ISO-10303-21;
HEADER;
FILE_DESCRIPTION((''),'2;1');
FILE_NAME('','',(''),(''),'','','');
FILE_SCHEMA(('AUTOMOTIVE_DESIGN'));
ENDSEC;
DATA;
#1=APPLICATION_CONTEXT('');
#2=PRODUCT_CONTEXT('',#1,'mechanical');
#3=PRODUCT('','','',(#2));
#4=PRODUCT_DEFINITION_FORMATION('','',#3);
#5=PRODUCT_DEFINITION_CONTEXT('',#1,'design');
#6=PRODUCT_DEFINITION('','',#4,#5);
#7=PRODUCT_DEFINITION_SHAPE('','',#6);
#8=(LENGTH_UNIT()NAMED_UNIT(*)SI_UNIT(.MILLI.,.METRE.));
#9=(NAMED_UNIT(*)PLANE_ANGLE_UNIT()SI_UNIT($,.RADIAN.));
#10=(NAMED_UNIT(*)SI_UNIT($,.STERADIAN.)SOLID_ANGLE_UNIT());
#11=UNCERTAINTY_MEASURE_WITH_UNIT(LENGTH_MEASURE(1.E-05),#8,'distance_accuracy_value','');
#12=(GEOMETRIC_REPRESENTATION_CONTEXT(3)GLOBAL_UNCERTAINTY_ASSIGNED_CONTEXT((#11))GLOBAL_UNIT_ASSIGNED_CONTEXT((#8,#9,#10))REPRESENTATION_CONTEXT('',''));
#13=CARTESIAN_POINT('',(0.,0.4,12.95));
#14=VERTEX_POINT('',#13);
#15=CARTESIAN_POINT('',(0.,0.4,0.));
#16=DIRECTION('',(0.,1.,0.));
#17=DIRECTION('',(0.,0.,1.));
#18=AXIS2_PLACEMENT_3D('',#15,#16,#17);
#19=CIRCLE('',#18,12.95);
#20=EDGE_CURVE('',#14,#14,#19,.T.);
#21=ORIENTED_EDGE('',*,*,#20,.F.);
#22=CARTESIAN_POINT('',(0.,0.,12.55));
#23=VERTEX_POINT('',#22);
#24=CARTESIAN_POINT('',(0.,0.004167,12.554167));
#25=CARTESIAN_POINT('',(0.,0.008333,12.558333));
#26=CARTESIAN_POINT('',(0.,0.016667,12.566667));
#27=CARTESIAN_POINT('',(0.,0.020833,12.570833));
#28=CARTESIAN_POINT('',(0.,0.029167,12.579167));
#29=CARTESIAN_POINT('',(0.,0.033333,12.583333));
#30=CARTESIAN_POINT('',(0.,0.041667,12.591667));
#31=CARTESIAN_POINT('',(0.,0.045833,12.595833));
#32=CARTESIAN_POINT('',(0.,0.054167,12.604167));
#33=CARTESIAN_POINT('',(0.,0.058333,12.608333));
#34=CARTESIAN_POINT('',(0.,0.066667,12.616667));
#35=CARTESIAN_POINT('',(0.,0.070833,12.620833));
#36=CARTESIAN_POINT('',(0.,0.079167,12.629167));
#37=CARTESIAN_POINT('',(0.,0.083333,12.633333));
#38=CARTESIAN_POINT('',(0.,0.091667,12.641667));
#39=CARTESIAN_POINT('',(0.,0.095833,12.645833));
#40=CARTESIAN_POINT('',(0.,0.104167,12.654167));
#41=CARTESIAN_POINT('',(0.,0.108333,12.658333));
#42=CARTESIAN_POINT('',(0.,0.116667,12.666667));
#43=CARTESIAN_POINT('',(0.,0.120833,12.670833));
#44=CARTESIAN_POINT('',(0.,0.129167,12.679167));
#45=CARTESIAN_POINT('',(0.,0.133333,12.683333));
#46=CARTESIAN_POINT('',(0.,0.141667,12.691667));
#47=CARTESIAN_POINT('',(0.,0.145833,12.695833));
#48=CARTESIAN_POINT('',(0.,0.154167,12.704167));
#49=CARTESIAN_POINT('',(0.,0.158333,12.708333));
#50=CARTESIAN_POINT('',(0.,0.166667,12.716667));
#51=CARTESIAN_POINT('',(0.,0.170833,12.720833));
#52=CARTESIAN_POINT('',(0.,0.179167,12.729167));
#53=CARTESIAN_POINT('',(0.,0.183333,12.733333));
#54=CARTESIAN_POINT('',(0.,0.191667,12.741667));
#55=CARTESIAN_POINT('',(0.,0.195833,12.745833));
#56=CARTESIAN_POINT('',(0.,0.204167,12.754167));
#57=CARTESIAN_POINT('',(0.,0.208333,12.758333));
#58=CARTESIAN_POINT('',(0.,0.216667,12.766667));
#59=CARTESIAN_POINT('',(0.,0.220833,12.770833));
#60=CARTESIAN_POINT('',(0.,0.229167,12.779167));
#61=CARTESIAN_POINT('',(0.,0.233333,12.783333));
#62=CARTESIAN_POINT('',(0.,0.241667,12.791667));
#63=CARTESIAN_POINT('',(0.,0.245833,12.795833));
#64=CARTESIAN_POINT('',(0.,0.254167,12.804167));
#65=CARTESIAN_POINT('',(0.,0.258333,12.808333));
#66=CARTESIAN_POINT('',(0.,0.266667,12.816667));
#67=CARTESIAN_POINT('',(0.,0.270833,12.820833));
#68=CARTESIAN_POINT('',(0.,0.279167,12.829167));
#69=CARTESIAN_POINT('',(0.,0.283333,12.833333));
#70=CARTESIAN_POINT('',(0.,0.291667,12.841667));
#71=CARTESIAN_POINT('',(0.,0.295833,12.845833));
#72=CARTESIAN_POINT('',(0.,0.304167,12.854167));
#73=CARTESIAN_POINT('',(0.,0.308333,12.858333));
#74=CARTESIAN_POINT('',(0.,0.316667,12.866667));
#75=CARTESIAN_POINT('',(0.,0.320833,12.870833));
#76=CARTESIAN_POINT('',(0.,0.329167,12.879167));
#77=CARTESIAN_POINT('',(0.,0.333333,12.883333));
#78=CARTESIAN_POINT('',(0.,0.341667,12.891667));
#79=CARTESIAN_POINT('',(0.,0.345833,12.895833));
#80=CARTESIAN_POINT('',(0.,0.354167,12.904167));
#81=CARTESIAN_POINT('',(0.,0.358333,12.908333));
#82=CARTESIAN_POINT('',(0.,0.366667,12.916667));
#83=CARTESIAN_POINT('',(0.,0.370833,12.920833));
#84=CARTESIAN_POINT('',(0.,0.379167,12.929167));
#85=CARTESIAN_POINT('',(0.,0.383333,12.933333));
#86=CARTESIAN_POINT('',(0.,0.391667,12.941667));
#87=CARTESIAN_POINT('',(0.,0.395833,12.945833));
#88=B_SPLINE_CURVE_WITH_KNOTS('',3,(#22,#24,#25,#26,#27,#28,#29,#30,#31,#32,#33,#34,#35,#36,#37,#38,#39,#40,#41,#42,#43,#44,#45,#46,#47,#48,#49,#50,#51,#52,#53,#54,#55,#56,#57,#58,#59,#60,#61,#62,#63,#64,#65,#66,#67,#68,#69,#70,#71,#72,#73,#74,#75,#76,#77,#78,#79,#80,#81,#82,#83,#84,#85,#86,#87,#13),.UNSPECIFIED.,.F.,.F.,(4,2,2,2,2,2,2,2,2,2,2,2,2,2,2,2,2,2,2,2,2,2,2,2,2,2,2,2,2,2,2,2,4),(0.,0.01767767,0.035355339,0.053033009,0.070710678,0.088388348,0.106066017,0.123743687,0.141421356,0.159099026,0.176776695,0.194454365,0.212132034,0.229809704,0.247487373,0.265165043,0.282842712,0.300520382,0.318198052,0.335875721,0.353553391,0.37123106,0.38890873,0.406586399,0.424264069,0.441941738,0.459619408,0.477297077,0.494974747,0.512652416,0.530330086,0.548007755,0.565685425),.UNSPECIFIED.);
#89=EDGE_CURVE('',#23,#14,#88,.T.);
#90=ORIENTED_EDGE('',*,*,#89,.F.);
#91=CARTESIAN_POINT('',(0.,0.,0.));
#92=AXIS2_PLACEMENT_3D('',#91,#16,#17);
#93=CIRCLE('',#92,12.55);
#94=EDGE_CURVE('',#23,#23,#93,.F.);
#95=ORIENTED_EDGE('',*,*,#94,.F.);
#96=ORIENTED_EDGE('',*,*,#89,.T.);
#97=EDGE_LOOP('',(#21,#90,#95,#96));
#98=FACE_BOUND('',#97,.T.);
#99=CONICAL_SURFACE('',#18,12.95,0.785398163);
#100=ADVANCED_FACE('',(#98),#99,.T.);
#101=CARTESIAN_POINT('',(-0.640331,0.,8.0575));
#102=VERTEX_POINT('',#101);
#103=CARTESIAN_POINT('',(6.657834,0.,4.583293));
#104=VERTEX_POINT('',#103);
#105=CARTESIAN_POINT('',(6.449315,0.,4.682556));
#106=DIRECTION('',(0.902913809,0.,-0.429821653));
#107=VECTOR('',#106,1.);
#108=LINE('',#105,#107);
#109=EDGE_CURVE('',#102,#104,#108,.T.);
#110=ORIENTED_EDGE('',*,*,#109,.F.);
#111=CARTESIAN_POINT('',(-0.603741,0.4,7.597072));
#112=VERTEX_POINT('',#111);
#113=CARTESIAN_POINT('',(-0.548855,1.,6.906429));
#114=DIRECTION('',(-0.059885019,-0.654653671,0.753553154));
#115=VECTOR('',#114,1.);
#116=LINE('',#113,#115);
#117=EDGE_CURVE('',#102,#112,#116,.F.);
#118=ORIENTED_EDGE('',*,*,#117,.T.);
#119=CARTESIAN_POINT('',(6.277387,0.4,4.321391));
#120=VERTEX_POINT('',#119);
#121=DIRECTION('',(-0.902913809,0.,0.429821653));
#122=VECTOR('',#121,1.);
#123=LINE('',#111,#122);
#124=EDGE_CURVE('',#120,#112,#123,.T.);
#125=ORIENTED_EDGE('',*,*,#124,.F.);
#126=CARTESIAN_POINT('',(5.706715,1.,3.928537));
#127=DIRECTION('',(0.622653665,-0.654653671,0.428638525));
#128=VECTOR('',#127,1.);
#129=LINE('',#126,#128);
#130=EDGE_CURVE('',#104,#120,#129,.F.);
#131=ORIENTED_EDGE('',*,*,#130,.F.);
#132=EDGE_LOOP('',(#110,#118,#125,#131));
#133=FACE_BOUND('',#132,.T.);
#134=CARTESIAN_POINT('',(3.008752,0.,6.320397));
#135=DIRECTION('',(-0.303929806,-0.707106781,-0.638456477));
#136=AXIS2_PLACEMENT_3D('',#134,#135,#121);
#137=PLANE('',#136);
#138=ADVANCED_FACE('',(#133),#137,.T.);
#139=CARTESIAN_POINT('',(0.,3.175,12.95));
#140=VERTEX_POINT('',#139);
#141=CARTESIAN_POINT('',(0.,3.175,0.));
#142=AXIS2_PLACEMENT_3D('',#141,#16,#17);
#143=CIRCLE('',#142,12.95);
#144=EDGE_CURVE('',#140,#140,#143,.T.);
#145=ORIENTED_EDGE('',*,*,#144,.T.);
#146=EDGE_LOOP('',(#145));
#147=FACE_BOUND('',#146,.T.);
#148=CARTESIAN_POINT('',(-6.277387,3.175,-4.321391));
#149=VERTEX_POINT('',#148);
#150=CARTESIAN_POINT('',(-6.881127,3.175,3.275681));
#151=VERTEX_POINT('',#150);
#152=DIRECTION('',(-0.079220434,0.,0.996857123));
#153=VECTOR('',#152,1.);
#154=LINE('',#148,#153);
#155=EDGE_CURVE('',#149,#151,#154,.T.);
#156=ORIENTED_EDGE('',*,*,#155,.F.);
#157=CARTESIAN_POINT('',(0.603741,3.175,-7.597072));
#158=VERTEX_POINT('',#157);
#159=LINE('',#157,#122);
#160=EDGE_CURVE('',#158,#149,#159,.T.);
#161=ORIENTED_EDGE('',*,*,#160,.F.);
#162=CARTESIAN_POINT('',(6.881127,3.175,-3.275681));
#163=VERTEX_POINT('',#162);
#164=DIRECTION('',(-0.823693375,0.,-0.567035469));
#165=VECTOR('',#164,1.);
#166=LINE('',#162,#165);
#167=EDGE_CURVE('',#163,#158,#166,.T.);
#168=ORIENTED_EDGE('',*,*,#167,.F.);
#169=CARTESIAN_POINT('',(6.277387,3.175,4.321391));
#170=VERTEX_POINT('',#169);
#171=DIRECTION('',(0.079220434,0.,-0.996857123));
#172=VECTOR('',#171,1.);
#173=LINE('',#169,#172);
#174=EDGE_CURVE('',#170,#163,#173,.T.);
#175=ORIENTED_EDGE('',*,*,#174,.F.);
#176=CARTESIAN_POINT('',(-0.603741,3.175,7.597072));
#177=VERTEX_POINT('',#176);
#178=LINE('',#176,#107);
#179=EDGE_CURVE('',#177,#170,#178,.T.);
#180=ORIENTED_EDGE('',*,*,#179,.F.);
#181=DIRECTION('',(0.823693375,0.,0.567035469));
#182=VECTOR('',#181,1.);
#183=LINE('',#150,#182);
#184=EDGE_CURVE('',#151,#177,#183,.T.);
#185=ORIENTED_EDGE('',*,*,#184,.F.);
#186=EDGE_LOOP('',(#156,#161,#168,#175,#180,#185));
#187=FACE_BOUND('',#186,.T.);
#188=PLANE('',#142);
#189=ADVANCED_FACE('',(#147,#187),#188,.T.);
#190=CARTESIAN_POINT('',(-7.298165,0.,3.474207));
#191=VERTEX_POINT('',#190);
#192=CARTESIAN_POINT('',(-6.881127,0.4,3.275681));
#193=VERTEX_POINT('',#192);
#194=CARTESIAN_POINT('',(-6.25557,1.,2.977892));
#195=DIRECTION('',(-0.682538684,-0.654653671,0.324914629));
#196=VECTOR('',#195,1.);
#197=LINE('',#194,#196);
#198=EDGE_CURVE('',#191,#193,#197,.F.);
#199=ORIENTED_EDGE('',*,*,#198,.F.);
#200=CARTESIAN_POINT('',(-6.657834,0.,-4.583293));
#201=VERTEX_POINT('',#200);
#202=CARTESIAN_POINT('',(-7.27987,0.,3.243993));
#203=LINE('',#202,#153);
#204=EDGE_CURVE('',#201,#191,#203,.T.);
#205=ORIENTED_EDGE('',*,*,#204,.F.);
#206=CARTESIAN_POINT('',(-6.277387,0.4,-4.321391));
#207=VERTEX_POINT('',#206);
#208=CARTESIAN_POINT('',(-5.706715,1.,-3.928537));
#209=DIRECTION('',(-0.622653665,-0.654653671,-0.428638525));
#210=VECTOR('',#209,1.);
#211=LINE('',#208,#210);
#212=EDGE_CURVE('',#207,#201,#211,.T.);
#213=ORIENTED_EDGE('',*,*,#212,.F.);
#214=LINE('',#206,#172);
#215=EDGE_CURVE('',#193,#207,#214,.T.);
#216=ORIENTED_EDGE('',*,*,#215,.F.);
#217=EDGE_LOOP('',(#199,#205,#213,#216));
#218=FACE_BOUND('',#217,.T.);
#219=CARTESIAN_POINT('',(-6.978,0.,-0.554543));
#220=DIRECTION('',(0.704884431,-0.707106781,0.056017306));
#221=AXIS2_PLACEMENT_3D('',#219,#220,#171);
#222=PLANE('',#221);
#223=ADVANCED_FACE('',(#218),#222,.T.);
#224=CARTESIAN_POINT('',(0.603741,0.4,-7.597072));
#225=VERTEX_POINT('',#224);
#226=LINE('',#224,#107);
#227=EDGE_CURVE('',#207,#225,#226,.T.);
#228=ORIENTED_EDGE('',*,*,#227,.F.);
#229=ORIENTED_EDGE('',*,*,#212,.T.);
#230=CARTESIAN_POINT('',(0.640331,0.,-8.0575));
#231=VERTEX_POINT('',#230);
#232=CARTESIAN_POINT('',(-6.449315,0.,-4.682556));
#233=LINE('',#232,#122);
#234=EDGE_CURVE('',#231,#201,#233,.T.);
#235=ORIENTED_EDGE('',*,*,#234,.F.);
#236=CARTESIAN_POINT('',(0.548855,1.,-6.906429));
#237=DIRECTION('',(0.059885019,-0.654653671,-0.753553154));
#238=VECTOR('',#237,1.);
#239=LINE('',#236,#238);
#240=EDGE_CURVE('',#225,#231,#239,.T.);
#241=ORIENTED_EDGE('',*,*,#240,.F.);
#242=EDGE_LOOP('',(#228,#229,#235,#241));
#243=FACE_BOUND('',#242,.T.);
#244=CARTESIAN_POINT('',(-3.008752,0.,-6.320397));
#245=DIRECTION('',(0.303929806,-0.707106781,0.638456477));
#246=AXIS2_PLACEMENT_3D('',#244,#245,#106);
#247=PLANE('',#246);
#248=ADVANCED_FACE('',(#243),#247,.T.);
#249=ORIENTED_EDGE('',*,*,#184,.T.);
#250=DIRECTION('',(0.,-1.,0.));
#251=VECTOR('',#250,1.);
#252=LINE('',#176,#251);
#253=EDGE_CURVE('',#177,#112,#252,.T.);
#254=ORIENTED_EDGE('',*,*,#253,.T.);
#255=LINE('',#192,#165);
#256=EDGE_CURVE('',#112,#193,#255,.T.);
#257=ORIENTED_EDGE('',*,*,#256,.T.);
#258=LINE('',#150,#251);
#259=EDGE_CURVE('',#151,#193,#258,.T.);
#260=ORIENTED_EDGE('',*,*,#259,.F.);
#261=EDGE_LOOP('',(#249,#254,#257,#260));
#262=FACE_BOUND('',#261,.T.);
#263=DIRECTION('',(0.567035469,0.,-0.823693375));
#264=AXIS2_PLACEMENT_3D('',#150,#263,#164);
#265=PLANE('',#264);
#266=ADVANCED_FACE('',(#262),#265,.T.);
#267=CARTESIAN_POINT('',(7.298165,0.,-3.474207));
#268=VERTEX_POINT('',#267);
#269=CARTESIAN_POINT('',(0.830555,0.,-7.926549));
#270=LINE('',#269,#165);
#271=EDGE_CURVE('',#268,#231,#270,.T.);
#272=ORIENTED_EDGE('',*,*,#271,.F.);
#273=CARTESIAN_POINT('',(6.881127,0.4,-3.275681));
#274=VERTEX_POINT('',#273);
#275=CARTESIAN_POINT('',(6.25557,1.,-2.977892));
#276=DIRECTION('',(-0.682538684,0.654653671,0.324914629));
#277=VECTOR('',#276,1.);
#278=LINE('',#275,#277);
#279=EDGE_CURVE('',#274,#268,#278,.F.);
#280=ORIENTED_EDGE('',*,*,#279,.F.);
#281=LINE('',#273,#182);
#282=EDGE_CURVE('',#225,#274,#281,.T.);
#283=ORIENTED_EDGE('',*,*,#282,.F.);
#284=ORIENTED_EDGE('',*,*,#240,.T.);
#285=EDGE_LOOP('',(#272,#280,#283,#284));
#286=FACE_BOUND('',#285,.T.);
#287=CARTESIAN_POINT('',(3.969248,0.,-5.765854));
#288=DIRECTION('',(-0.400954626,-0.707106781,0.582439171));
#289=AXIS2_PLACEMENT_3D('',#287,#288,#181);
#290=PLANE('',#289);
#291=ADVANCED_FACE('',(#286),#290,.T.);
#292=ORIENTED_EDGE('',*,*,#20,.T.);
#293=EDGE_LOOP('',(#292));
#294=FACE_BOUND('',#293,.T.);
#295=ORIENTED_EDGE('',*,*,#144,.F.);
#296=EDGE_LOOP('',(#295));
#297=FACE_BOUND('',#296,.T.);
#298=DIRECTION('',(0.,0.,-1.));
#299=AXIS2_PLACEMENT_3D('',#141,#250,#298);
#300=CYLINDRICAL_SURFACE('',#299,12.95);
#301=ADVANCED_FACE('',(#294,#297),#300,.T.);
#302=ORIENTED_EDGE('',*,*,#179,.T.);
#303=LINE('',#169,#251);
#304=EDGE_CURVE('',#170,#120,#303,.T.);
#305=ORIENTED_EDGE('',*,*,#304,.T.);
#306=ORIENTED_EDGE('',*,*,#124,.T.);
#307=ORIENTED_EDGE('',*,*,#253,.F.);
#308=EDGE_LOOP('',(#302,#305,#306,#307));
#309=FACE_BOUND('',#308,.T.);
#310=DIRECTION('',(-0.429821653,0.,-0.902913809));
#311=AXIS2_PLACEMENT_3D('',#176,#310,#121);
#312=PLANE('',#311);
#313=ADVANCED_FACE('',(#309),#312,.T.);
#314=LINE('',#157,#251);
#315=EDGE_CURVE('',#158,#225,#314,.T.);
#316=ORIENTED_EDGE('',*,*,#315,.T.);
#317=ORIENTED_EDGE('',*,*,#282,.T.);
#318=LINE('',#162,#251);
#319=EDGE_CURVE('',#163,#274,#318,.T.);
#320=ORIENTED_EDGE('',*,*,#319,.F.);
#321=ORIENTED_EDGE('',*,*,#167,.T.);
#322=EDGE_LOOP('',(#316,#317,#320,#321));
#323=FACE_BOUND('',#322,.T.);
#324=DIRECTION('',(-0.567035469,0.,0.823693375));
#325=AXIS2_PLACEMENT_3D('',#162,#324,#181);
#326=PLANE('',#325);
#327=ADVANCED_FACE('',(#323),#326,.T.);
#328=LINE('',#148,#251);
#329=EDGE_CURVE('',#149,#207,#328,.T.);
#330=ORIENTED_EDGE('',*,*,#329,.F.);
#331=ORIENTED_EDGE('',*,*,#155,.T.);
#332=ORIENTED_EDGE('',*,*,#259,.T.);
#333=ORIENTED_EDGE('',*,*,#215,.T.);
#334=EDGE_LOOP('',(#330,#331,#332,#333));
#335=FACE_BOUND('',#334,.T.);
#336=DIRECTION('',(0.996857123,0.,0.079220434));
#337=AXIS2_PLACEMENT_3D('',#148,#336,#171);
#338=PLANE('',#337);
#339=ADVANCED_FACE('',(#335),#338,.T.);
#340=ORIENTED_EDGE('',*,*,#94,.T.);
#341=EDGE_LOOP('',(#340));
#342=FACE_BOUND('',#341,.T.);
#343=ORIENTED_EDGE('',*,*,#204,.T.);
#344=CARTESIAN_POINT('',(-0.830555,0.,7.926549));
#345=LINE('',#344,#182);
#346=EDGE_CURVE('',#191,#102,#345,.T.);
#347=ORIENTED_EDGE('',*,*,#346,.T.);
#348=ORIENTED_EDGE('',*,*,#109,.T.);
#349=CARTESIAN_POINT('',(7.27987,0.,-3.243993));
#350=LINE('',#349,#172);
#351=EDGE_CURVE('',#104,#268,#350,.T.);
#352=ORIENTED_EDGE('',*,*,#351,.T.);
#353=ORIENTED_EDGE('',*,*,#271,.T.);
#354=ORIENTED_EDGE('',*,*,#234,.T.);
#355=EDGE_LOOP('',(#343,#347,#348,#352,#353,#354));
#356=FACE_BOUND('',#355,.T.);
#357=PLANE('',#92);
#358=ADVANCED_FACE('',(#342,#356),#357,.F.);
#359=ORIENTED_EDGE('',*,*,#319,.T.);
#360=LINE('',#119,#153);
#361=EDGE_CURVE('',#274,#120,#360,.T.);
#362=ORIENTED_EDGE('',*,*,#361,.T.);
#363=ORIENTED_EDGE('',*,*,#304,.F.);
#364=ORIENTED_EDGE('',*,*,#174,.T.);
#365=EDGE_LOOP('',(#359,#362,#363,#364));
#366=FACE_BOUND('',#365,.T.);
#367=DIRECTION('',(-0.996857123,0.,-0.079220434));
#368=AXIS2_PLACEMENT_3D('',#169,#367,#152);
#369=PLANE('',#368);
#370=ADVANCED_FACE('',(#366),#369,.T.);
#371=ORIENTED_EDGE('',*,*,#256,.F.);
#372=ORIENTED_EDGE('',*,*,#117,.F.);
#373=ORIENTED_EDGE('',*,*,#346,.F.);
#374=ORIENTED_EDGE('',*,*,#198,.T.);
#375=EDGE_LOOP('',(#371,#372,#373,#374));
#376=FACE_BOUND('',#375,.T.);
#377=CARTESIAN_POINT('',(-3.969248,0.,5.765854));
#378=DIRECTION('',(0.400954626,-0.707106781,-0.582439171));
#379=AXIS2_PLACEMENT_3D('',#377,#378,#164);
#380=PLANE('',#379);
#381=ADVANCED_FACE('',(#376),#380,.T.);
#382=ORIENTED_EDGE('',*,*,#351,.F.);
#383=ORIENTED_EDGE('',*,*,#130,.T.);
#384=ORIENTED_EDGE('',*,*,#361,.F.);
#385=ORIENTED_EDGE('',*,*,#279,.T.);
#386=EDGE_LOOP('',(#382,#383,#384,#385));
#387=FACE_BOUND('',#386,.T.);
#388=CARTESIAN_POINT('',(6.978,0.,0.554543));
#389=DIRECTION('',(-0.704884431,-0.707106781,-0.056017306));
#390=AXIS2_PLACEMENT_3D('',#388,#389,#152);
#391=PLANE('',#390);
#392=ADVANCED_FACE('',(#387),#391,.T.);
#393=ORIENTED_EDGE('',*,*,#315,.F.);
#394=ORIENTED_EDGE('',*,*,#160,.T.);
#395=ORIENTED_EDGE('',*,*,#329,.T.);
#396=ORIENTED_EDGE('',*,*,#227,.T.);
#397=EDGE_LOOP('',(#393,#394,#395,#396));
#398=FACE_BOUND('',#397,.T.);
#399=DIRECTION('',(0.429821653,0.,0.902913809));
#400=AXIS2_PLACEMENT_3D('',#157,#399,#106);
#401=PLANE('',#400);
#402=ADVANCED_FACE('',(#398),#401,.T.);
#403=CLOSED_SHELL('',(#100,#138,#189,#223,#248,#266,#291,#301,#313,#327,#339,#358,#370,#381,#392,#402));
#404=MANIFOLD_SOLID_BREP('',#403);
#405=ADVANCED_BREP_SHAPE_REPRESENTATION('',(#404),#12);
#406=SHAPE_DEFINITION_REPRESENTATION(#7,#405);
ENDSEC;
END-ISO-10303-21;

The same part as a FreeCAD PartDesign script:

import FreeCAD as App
import Part
import Sketcher
Q = App.Units.Quantity


def edges_at(feature, points):
    """Names of the edges that pass closest to the given points."""
    edges = feature.Shape.Edges
    near = lambda p: min(range(len(edges)), key=lambda i: edges[i].distToShape(Part.Vertex(*p))[0])
    return sorted({f"Edge{near(p) + 1}" for p in points})


def add_polygon(sketch, points):
    """Adds a closed chain of lines whose ends are joined by coincident constraints."""
    first, n = sketch.GeometryCount, len(points)
    for a, b in zip(points, points[1:] + points[:1]):
        sketch.addGeometry(Part.LineSegment(App.Vector(*a, 0), App.Vector(*b, 0)), False)
    for i in range(n):
        sketch.addConstraint(Sketcher.Constraint("Coincident", first + i, 2, first + (i + 1) % n, 1))

doc = App.newDocument("Part")
params = doc.addObject("Spreadsheet::Sheet", "Params")
for row, (alias, value) in enumerate([
    ("sketch1_diameter", "25.9 mm"),
    ("pad1_length", "3.175 mm"),
    ("chamfer_size", "0.4 mm"),
], start=1):
    params.set(f"A{row}", alias)
    params.set(f"B{row}", "=" + value)
    params.setAlias(f"B{row}", alias)

body = doc.addObject("PartDesign::Body", "Body")

sketch1 = doc.addObject("Sketcher::SketchObject", "Sketch")
body.addObject(sketch1)
sketch1.AttachmentSupport = (doc.XZ_Plane, [""])
sketch1.MapMode = "FlatFace"
sketch1.addGeometry(Part.Circle(App.Vector(0, 0, 0), App.Vector(0, 0, 1), 13), False)
add_polygon(sketch1, [(-6, -4), (1, -8), (7, -3), (6, 4), (-1, 8), (-7, 3)])
sketch1.addConstraint([
    Sketcher.Constraint("Coincident", 0, 3, -1, 1),
    Sketcher.Constraint("Symmetric", 1, 2, 4, 2, -1, 1),
    Sketcher.Constraint("Symmetric", 2, 2, 5, 2, -1, 1),
    Sketcher.Constraint("Symmetric", 3, 2, 6, 2, -1, 1),
    Sketcher.Constraint("Equal", 1, 2),
    Sketcher.Constraint("Equal", 2, 3),
    Sketcher.Constraint("Diameter", 0, Q("25.9 mm")),
    Sketcher.Constraint("DistanceX", -1, 1, 1, 2, Q("0.603741 mm")),
    Sketcher.Constraint("DistanceY", 1, 2, -1, 1, Q("7.597072 mm")),
    Sketcher.Constraint("DistanceY", 2, 2, -1, 1, Q("3.275681 mm")),
    Sketcher.Constraint("DistanceY", -1, 1, 3, 2, Q("4.321391 mm")),
])
sketch1.setExpression("Constraints[12]", "Params.sketch1_diameter")
pad1 = doc.addObject("PartDesign::Pad", "Pad")
body.addObject(pad1)
pad1.Profile = sketch1
pad1.setExpression("Length", "Params.pad1_length")
pad1.Reversed = True
doc.recompute()

chamfer = doc.addObject("PartDesign::Chamfer", "Chamfer")
body.addObject(chamfer)
chamfer.Base = (pad1, edges_at(pad1, [
    (-6.579, 0, -0.523),
    (-3.742, 0, 5.436),
    (2.837, 0, 5.959),
    (6.579, 0, 0.523),
    (0, 0, -12.95),
    (3.742, 0, -5.436),
    (-2.837, 0, -5.959),
]))
chamfer.setExpression("Size", "Params.chamfer_size")

doc.recompute()
